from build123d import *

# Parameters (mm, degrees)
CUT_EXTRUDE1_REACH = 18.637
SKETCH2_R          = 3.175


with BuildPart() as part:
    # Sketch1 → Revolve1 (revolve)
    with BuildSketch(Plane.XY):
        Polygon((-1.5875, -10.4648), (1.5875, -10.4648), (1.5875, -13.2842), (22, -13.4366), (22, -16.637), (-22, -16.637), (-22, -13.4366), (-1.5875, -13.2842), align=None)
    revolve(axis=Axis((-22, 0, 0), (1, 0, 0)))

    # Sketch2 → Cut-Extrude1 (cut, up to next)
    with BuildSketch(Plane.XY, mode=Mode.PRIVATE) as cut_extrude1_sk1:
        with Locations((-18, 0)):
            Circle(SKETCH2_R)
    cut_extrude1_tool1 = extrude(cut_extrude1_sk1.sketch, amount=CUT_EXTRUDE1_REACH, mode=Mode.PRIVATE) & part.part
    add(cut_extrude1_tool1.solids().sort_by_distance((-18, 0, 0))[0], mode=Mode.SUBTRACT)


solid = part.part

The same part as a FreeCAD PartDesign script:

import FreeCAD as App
import Part
import Sketcher

V = App.Vector
Q = App.Units.Quantity


def add_polygon(sketch, points):
    """Adds a closed chain of lines whose ends are joined by coincident constraints."""
    first, n = sketch.GeometryCount, len(points)
    for a, b in zip(points, points[1:] + points[:1]):
        sketch.addGeometry(Part.LineSegment(App.Vector(*a, 0), App.Vector(*b, 0)), False)
    for i in range(n):
        sketch.addConstraint(Sketcher.Constraint("Coincident", first + i, 2, first + (i + 1) % n, 1))

doc = App.newDocument("Part")
body = doc.addObject("PartDesign::Body", "Body")

# Sketch on XY plane
sketch1 = body.newObject("Sketcher::SketchObject", "Sketch")
sketch1.AttachmentSupport = (doc.getObject("XY_Plane"), [""])
sketch1.MapMode = "FlatFace"
add_polygon(sketch1, [(1.6, -10.5), (-1.6, -10.5), (-1.6, -13.3), (-22, -13.4), (-22, -16.6), (22, -16.6), (22, -13.4), (1.6, -13.3)])  # lines 0-7
sketch1.addConstraint([
    Sketcher.Constraint("Horizontal", 0),
    Sketcher.Constraint("Vertical", 1),
    Sketcher.Constraint("Vertical", 3),
    Sketcher.Constraint("Horizontal", 4),
    Sketcher.Constraint("Vertical", 5),
    Sketcher.Constraint("Vertical", 7),
    Sketcher.Constraint("Symmetric", 2, 2, 5, 2, -2),
    Sketcher.Constraint("Symmetric", 1, 2, 6, 2, -2),
    Sketcher.Constraint("DistanceX", 0, 2, 0, 1, Q("0.125 in")),
    Sketcher.Constraint("DistanceY", 1, 2, 1, 1, Q("0.111 in")),
    Sketcher.Constraint("DistanceY", 3, 2, 3, 1, Q("0.126 in")),
    Sketcher.Constraint("DistanceY", 0, 2, -1, 1, Q("0.412 in")),
    Sketcher.Constraint("DistanceY", 2, 2, -1, 1, Q("0.529 in")),
    Sketcher.Constraint("DistanceX", 4, 1, 4, 2, 44.0),
])
revolution = body.newObject("PartDesign::Revolution", "Revolution")
revolution.Profile = sketch1
revolution.ReferenceAxis = (sketch1, ["H_Axis"])
revolution.Angle = 360

# Sketch on XY plane
sketch2 = body.newObject("Sketcher::SketchObject", "Sketch001")
sketch2.AttachmentSupport = (doc.getObject("XY_Plane"), [""])
sketch2.MapMode = "FlatFace"
sketch2.addGeometry(Part.Circle(V(-18, 0, 0), V(0, 0, 1), 3.2), False)
sketch2.addConstraint([
    Sketcher.Constraint("PointOnObject", 0, 3, -1),
    Sketcher.Constraint("Diameter", 0, Q("0.25 in")),
    Sketcher.Constraint("DistanceX", 0, 3, -1, 1, 18.0),
])
pocket1 = body.newObject("PartDesign::Pocket", "Pocket")
pocket1.Profile = sketch2
pocket1.Length = Q("0.655 in")
pocket1.Reversed = True

doc.recompute()
